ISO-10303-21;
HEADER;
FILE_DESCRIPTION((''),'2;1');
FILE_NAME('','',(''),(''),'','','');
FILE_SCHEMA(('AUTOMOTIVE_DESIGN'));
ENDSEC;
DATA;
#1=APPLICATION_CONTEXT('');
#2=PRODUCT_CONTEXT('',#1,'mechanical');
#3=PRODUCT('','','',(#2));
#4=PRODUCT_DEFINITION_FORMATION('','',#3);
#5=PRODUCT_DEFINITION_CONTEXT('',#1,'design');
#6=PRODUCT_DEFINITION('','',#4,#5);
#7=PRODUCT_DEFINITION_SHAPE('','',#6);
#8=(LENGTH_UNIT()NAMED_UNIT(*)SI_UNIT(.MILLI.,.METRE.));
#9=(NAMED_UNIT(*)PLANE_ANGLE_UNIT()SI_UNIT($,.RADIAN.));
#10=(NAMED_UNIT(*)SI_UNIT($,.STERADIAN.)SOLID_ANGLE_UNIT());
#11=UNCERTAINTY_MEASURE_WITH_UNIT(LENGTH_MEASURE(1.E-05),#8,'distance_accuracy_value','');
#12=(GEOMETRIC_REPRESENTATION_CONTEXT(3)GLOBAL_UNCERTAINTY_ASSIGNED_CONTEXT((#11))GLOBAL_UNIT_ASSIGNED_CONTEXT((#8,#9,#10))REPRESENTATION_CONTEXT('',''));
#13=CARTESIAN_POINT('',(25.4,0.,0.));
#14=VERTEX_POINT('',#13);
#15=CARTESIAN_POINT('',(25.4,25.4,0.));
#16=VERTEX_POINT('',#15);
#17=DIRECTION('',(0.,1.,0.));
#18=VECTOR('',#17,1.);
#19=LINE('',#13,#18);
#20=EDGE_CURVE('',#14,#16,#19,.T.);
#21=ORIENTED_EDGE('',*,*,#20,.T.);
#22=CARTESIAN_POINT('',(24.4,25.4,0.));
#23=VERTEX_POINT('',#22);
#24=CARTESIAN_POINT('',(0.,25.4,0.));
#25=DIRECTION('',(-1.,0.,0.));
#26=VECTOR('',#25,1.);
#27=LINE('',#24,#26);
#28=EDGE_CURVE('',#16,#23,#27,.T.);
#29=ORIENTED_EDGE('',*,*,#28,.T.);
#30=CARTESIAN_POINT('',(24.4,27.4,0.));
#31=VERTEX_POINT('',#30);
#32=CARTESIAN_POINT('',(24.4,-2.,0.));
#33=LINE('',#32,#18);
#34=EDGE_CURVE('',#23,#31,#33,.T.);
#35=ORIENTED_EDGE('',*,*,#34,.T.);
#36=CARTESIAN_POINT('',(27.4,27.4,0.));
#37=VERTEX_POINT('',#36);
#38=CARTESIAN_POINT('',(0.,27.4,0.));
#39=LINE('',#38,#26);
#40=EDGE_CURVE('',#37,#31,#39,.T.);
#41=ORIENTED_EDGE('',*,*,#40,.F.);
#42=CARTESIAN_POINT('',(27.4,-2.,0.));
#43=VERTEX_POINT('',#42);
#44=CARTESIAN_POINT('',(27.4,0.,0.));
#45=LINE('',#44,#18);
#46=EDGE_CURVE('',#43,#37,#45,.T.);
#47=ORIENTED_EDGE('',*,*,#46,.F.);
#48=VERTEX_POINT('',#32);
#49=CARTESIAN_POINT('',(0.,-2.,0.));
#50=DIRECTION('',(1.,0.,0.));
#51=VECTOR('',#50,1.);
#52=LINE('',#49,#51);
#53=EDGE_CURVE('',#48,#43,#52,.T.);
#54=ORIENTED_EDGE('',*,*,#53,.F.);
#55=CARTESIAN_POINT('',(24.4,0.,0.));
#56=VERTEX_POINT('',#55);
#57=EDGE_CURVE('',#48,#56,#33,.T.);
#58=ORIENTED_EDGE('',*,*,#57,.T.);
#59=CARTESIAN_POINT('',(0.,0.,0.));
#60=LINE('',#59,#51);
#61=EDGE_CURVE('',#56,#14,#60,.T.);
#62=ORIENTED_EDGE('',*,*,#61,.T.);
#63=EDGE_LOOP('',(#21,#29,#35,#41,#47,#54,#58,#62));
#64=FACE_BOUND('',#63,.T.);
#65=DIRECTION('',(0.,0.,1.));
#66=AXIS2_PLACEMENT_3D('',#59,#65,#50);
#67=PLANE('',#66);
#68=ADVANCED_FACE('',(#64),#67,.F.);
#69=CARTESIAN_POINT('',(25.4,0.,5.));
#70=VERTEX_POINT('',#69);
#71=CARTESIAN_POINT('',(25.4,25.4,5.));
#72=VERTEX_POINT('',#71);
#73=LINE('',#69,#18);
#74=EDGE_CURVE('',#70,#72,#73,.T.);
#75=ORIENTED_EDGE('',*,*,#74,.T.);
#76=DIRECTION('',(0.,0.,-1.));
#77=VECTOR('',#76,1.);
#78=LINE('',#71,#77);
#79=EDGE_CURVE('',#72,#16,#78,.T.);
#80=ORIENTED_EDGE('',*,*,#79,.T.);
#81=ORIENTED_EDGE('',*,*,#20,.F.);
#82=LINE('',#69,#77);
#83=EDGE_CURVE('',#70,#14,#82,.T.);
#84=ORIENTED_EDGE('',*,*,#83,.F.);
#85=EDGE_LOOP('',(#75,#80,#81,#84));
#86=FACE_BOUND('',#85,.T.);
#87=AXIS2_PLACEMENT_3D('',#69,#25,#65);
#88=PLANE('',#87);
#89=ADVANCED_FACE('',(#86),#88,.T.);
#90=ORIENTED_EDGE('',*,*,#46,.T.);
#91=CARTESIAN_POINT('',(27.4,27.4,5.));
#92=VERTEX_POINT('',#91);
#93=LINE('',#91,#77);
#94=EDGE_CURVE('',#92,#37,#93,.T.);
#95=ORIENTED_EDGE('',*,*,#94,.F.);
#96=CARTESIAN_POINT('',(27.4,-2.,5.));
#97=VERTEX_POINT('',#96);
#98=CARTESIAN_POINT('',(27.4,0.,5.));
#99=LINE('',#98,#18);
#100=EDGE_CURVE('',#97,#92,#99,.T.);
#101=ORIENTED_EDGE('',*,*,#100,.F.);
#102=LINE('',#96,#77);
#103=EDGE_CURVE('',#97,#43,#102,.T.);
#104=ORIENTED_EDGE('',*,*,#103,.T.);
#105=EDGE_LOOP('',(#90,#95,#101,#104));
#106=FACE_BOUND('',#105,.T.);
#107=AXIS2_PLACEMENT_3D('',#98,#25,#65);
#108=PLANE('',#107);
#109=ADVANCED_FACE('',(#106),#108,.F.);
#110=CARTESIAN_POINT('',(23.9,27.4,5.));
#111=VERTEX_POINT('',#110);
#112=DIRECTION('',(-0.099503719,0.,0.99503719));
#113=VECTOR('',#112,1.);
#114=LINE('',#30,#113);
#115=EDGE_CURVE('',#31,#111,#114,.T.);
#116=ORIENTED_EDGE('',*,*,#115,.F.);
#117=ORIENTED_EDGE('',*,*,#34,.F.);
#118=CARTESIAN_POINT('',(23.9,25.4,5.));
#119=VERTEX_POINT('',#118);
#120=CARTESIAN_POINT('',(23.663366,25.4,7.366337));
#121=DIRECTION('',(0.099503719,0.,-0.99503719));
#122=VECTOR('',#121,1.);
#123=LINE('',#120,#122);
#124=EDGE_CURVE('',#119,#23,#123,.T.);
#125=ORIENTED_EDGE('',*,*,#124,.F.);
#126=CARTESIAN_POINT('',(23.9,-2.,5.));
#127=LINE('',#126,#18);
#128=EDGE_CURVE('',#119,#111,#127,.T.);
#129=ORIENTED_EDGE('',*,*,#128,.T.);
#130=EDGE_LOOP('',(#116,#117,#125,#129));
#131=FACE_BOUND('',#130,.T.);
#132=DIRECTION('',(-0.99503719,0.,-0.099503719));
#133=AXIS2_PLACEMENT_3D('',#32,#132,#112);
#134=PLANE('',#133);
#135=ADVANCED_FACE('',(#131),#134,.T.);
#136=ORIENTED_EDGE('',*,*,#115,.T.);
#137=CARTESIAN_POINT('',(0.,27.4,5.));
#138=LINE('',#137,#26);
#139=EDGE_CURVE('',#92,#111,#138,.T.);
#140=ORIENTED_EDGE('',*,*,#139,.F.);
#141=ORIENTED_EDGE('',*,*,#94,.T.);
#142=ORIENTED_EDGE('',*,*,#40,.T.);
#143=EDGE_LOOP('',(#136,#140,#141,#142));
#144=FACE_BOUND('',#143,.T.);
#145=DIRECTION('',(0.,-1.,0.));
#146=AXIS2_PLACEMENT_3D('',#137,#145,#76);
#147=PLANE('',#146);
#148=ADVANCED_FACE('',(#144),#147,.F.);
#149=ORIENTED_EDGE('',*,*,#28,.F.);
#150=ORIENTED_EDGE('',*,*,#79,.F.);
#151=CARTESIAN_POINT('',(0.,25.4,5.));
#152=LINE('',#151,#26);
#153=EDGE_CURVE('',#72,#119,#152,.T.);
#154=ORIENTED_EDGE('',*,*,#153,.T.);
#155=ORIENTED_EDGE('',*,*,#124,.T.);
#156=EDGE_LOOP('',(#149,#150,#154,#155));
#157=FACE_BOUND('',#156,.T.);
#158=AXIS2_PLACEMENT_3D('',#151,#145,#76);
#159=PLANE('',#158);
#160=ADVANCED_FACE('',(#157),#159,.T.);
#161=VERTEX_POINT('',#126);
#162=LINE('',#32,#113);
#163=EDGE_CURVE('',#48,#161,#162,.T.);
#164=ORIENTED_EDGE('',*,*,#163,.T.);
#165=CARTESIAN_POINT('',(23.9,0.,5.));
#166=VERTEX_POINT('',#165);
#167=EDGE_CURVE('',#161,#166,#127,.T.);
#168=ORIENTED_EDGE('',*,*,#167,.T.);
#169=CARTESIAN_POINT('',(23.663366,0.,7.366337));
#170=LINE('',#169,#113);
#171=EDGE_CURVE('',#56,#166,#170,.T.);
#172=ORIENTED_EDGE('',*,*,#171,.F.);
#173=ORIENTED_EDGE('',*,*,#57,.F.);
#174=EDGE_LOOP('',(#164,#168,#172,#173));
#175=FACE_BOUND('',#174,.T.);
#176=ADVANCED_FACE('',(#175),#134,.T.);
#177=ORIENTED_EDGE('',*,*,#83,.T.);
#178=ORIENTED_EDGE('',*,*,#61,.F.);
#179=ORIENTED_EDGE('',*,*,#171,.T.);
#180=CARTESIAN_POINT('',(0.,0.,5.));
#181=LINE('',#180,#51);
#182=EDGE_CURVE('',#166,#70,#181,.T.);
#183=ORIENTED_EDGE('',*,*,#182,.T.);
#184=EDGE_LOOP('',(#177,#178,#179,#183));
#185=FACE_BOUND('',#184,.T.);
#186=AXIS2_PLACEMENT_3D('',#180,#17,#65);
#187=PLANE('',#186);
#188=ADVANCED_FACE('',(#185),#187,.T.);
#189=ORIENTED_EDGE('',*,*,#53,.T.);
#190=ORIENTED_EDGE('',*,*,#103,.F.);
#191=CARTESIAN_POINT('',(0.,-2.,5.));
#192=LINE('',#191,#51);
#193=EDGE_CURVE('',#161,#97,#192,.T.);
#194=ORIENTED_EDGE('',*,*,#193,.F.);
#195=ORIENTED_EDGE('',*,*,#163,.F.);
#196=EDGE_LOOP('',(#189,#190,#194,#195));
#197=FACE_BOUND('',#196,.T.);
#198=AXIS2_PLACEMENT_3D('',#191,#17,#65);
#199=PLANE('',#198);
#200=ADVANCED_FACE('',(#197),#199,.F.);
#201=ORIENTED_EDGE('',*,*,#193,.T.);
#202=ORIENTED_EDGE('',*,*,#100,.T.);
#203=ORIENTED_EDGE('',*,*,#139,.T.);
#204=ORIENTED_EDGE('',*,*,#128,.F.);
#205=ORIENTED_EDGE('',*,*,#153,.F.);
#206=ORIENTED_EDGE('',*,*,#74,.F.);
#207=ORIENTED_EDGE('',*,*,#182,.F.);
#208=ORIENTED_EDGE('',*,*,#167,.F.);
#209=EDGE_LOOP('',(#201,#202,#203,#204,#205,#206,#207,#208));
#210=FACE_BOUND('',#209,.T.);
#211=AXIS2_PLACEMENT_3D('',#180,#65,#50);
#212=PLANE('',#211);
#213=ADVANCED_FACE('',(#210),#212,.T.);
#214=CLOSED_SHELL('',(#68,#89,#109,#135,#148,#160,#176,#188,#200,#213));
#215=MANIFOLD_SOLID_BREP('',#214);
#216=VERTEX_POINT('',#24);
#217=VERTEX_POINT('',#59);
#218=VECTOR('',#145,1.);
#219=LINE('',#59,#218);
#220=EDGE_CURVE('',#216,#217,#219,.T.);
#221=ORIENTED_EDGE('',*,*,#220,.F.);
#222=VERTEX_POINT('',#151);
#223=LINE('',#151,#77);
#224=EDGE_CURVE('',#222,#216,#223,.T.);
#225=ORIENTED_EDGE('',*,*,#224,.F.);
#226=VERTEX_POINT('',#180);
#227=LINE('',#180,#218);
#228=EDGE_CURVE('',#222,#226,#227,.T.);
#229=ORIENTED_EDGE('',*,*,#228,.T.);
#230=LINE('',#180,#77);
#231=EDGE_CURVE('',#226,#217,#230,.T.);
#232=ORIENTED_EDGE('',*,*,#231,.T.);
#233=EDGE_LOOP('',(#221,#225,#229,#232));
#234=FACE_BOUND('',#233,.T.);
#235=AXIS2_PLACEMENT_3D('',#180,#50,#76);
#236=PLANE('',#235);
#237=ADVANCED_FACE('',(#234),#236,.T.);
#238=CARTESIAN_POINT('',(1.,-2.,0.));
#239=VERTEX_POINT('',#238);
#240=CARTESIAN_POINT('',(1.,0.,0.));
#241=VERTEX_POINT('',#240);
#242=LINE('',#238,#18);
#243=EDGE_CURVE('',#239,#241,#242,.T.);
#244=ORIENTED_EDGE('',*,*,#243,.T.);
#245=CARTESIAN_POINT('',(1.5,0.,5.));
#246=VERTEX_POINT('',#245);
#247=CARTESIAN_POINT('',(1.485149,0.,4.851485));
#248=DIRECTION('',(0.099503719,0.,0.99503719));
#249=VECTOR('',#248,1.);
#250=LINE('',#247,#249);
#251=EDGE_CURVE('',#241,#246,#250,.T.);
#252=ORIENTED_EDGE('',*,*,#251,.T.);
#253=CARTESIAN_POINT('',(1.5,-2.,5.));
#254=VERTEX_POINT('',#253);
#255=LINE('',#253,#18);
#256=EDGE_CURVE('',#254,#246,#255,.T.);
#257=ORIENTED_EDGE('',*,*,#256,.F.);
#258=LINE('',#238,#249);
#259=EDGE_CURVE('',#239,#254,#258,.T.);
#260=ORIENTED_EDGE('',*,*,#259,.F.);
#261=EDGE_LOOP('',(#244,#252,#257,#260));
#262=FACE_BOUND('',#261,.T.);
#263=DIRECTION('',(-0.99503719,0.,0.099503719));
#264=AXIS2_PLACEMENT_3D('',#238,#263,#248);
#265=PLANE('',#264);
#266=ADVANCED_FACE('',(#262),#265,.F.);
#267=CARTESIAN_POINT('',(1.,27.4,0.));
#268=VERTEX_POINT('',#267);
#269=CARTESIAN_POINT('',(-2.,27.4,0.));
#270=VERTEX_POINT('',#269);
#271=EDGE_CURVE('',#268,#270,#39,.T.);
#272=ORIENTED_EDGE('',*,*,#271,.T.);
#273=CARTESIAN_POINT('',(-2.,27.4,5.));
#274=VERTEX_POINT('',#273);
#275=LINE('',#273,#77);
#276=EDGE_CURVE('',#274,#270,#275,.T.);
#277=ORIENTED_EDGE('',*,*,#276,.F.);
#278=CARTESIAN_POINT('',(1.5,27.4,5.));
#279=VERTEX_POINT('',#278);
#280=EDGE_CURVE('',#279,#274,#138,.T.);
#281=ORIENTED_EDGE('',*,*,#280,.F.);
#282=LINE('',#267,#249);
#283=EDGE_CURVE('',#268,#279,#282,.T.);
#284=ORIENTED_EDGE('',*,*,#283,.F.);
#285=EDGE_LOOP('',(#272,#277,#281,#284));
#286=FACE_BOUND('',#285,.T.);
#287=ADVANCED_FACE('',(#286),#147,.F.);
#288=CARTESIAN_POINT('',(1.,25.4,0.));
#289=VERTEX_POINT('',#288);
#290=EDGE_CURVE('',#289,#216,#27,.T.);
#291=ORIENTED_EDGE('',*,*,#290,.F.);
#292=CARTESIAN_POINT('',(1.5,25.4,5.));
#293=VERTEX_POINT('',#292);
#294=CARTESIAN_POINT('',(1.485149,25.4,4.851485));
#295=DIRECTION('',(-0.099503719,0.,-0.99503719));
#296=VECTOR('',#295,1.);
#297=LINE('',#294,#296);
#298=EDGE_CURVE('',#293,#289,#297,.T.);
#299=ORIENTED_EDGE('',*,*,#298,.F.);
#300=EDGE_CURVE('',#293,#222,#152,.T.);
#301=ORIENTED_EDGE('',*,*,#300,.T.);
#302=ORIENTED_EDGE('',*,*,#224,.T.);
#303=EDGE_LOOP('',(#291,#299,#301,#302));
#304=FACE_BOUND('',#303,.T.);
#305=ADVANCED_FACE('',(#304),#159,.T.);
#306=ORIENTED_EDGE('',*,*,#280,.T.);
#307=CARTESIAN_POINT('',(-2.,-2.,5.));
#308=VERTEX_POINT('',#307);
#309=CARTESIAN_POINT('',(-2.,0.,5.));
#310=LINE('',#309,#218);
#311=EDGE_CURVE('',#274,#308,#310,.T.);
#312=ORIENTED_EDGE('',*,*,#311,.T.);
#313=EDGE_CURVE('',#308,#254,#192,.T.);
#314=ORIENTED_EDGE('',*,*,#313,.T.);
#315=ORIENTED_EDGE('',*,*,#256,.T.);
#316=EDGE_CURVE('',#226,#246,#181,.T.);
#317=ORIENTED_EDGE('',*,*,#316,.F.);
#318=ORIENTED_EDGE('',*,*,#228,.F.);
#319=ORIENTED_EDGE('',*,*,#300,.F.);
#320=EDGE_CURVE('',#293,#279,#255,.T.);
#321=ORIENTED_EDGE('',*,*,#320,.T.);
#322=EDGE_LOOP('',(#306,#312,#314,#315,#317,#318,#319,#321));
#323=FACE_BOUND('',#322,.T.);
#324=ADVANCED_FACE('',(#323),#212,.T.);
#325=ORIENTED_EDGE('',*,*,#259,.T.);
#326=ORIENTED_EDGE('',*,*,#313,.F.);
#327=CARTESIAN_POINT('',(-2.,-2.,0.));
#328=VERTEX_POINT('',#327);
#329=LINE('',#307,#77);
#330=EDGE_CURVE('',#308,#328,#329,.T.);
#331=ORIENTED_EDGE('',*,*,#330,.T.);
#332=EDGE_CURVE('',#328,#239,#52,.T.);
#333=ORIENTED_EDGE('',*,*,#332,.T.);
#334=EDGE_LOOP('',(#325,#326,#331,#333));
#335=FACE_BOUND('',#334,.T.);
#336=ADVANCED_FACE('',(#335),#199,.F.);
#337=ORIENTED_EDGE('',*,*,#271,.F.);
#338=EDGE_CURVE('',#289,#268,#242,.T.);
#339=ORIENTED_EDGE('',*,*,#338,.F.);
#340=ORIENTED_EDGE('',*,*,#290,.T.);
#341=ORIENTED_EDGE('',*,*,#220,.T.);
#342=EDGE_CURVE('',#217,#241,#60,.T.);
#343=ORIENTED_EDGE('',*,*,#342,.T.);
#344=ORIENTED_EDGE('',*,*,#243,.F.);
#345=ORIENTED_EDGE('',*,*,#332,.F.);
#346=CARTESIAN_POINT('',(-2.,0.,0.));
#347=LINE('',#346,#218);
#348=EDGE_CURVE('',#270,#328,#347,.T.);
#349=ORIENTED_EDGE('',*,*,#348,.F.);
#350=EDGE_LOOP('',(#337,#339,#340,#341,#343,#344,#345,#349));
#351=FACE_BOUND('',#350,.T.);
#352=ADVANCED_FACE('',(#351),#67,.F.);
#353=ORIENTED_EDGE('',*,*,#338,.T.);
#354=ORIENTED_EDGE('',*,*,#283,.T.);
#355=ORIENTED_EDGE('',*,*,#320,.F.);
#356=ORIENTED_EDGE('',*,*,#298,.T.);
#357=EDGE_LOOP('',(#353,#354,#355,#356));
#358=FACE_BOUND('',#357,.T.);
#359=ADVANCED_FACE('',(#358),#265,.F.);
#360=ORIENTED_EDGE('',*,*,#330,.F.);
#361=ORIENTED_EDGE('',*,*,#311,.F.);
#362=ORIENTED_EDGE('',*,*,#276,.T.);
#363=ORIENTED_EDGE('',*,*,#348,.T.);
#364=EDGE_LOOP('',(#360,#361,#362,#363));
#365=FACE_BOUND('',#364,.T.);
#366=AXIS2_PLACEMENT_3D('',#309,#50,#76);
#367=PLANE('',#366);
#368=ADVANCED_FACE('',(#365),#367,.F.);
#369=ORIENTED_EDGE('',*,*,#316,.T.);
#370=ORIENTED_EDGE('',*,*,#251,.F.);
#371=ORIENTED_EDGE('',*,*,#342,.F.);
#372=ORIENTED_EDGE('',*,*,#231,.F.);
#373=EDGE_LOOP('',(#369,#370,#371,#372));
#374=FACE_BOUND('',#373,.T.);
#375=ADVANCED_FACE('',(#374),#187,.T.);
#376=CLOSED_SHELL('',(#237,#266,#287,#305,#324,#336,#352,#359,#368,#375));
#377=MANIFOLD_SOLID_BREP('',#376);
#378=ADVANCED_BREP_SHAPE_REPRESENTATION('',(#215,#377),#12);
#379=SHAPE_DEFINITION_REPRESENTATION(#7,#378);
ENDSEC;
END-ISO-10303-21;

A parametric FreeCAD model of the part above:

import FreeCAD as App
import Part
import Sketcher
from FreeCAD import Vector
Q = App.Units.Quantity


def add_polygon(sketch, points):
    """Adds a closed chain of lines whose ends are joined by coincident constraints."""
    first, n = sketch.GeometryCount, len(points)
    for a, b in zip(points, points[1:] + points[:1]):
        sketch.addGeometry(Part.LineSegment(App.Vector(*a, 0), App.Vector(*b, 0)), False)
    for i in range(n):
        sketch.addConstraint(Sketcher.Constraint("Coincident", first + i, 2, first + (i + 1) % n, 1))

doc = App.newDocument("Part")
params = doc.addObject("Spreadsheet::Sheet", "Params")
for row, (alias, value) in enumerate([
    ("sketch1_width", "29.4 mm"),
    ("sketch1_width2", "25.4 mm"),
    ("pad1_length", "5 mm"),
    ("sketch2_width", "22.4 mm"),
    ("sketch2_width2", "23.4 mm"),
], start=1):
    params.set(f"A{row}", alias)
    params.set(f"B{row}", "=" + value)
    params.setAlias(f"B{row}", alias)

body = doc.addObject("PartDesign::Body", "Body")
body.AllowCompound = True

# Sketch on XY plane
sketch1 = body.newObject("Sketcher::SketchObject", "Sketch")
sketch1.AttachmentSupport = (doc.getObject("XY_Plane"), [""])
sketch1.MapMode = "FlatFace"
add_polygon(sketch1, [(-2, 27.4), (-2, -2), (27.4, -2), (27.4, 27.4)])  # lines 0-3
add_polygon(sketch1, [(25.4, 0), (0, 0), (0, 25.4), (25.4, 25.4)])  # lines 4-7
sketch1.addConstraint([
    Sketcher.Constraint("Vertical", 0),
    Sketcher.Constraint("Horizontal", 1),
    Sketcher.Constraint("Vertical", 2),
    Sketcher.Constraint("Horizontal", 3),
    Sketcher.Constraint("Horizontal", 4),
    Sketcher.Constraint("Vertical", 5),
    Sketcher.Constraint("Horizontal", 6),
    Sketcher.Constraint("Vertical", 7),
    Sketcher.Constraint("Coincident", 4, 2, -1, 1),
    Sketcher.Constraint("Equal", 3, 0),
    Sketcher.Constraint("Equal", 6, 5),
    Sketcher.Constraint("DistanceX", 1, 1, 1, 2, Q("29.4 mm")),
    Sketcher.Constraint("DistanceX", 4, 2, 4, 1, Q("25.4 mm")),
    Sketcher.Constraint("DistanceX", 0, 2, -1, 1, Q("2 mm")),
    Sketcher.Constraint("DistanceY", 0, 2, -1, 1, Q("2 mm")),
])
sketch1.setExpression("Constraints[19]", "Params.sketch1_width")
sketch1.setExpression("Constraints[20]", "Params.sketch1_width2")
pad1 = body.newObject("PartDesign::Pad", "Pad")
pad1.Profile = sketch1
pad1.setExpression("Length", "Params.pad1_length")

# Sketch on XZ plane
sketch2 = body.newObject("Sketcher::SketchObject", "Sketch001")
sketch2.AttachmentSupport = (doc.getObject("XZ_Plane"), [""])
sketch2.MapMode = "FlatFace"
add_polygon(sketch2, [(1, 0), (1.5, 5), (23.9, 5), (24.4, 0)])  # lines 0-3
sketch2.addConstraint([
    Sketcher.Constraint("Horizontal", 1),
    Sketcher.Constraint("Horizontal", 3),
    Sketcher.Constraint("PointOnObject", 2, 2, -1),
    Sketcher.Constraint("Equal", 0, 2),
    Sketcher.Constraint("DistanceX", 1, 1, 1, 2, Q("22.4 mm")),
    Sketcher.Constraint("DistanceX", 3, 2, 3, 1, Q("23.4 mm")),
    Sketcher.Constraint("DistanceY", -1, 1, 0, 2, Q("5 mm")),
    Sketcher.Constraint("DistanceX", -1, 1, 3, 2, Q("1 mm")),
])
sketch2.setExpression("Constraints[8]", "Params.sketch2_width")
sketch2.setExpression("Constraints[9]", "Params.sketch2_width2")
pocket1 = body.newObject("PartDesign::Pocket", "Pocket")
pocket1.Profile = sketch2
pocket1.Type = "ThroughAll"
pocket1.Midplane = True

doc.recompute()
